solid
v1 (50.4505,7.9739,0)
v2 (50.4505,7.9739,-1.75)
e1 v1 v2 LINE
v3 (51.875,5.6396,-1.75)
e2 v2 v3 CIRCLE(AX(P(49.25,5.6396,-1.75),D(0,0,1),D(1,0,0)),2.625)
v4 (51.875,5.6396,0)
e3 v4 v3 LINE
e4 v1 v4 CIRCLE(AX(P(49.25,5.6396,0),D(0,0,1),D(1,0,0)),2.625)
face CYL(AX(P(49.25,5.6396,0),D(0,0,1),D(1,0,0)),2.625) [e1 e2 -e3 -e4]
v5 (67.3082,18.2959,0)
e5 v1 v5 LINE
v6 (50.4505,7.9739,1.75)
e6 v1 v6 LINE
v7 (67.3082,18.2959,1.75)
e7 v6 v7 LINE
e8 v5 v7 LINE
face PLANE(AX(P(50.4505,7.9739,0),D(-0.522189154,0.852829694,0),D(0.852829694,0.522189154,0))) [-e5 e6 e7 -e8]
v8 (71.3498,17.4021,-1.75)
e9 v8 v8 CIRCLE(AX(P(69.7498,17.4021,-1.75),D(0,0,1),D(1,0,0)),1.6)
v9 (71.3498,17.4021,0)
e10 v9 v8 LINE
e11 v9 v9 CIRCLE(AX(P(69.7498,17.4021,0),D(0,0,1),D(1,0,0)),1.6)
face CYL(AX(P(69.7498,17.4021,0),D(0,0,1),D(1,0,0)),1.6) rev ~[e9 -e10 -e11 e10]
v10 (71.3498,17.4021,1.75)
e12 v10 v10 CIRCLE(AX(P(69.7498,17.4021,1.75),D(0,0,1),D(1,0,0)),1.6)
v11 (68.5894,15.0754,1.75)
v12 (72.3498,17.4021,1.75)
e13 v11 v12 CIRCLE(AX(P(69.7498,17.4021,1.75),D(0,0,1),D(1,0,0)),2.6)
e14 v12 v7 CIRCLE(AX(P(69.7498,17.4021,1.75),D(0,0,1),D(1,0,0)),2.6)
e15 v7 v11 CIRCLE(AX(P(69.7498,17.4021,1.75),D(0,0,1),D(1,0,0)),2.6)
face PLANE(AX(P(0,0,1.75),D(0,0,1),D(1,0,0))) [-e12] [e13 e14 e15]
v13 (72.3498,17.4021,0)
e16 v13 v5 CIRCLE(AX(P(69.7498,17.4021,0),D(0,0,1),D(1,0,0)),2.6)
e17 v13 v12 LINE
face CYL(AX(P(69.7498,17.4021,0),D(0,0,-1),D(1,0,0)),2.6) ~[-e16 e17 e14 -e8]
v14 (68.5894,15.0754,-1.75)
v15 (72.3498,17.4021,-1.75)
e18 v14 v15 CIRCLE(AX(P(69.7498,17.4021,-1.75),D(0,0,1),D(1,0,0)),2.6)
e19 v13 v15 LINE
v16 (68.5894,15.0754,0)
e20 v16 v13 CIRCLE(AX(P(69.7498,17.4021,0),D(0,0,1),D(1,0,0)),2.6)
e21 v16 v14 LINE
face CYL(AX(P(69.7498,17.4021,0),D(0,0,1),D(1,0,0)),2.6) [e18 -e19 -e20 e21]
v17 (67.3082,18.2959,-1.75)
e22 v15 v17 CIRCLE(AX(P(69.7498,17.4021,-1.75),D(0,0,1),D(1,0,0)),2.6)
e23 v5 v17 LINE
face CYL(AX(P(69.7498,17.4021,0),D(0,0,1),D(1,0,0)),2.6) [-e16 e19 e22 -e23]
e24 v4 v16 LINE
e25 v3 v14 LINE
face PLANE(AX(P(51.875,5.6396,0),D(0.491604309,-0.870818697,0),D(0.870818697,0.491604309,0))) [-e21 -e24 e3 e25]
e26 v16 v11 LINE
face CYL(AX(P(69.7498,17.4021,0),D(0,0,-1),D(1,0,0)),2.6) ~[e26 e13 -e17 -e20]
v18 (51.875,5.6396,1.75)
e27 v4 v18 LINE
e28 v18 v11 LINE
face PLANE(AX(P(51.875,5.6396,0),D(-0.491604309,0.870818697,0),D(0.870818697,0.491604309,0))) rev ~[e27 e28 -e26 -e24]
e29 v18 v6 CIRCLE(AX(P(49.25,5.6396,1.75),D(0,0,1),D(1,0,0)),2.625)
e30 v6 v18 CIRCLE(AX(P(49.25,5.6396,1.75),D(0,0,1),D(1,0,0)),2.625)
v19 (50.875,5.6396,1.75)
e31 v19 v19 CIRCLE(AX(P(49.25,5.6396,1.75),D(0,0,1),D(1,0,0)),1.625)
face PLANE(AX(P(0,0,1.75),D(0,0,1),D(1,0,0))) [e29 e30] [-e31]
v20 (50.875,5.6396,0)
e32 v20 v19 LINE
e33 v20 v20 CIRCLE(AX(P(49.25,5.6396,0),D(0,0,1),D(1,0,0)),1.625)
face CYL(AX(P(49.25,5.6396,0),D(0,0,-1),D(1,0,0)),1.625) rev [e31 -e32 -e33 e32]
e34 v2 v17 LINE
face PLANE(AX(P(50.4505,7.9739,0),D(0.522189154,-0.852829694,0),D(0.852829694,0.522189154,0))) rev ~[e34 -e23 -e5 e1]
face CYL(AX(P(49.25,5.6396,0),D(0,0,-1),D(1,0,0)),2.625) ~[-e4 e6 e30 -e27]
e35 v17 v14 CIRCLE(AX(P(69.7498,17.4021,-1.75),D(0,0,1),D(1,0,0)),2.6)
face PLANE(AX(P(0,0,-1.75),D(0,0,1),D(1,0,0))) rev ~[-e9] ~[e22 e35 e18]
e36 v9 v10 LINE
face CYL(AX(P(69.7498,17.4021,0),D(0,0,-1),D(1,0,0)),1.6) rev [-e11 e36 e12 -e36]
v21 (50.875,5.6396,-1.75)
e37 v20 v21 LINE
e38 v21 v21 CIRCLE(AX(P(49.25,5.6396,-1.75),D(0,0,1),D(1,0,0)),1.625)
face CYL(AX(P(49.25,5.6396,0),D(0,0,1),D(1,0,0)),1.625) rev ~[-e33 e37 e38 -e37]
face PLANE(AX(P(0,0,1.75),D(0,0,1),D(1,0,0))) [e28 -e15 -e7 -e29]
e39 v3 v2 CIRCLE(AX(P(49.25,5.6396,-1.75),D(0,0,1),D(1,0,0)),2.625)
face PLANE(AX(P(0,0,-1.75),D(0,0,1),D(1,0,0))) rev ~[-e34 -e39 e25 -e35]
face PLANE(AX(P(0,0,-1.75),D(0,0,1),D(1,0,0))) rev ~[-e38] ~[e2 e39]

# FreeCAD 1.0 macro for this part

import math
import FreeCAD as App
import Part
import Sketcher
Q = App.Units.Quantity

doc = App.newDocument("Part")
params = doc.addObject("Spreadsheet::Sheet", "Params")
for row, (alias, value) in enumerate([
    ("sketch1_diameter", "3.2 mm"),
    ("sketch1_radius", "2.6 mm"),
    ("sketch1_diameter2", "3.25 mm"),
    ("pad1_length", "3.5 mm"),
], start=1):
    params.set(f"A{row}", alias)
    params.set(f"B{row}", "=" + value)
    params.setAlias(f"B{row}", alias)

body = doc.addObject("PartDesign::Body", "Body")

sketch1 = body.newObject("Sketcher::SketchObject", "Sketch")
sketch1.AttachmentSupport = (doc.getObject("XY_Plane"), [""])
sketch1.MapMode = "FlatFace"
sketch1.addGeometry(Part.ArcOfCircle(Part.Circle(App.Vector(49.2, 5.6, 0), App.Vector(0, 0, 1), 2.6), math.radians(63), math.radians(360)), False)
sketch1.addGeometry(Part.LineSegment(App.Vector(51.9, 5.6, 0), App.Vector(68.6, 15.1, 0)), False)
sketch1.addGeometry(Part.ArcOfCircle(Part.Circle(App.Vector(69.7, 17.4, 0), App.Vector(0, 0, 1), 2.6), math.radians(-117), math.radians(160)), False)
sketch1.addGeometry(Part.LineSegment(App.Vector(67.3, 18.3, 0), App.Vector(50.5, 8, 0)), False)
sketch1.addGeometry(Part.Circle(App.Vector(49.2, 5.6, 0), App.Vector(0, 0, 1), 1.6), False)
sketch1.addGeometry(Part.Circle(App.Vector(69.7, 17.4, 0), App.Vector(0, 0, 1), 1.6), False)
sketch1.addConstraint(Sketcher.Constraint("Coincident", 0, 2, 1, 1))
sketch1.addConstraint(Sketcher.Constraint("Coincident", 1, 2, 2, 1))
sketch1.addConstraint(Sketcher.Constraint("Coincident", 2, 2, 3, 1))
sketch1.addConstraint(Sketcher.Constraint("Coincident", 3, 2, 0, 1))
sketch1.addConstraint(Sketcher.Constraint("Coincident", 4, 3, 0, 3))
sketch1.addConstraint(Sketcher.Constraint("Coincident", 5, 3, 2, 3))
sketch1.addConstraint(Sketcher.Constraint("Horizontal", 4, 3, 0, 2))
sketch1.addConstraint(Sketcher.Constraint("Diameter", 5, 3.2))
sketch1.addConstraint(Sketcher.Constraint("Radius", 2, 2.6))
sketch1.addConstraint(Sketcher.Constraint("Diameter", 4, 3.25))
sketch1.addConstraint(Sketcher.Constraint("Radius", 0, 2.625))
sketch1.addConstraint(Sketcher.Constraint("Angle", 3, Q("-148.5208 deg")))
sketch1.addConstraint(Sketcher.Constraint("DistanceX", -1, 1, 0, 3, 49.25))
sketch1.addConstraint(Sketcher.Constraint("Distance", 1, 19.194))
sketch1.addConstraint(Sketcher.Constraint("DistanceY", -1, 1, 2, 3, 17.402))
sketch1.addConstraint(Sketcher.Constraint("DistanceY", -1, 1, 2, 2, 18.296))
sketch1.addConstraint(Sketcher.Constraint("DistanceY", -1, 1, 3, 2, 7.974))
sketch1.addConstraint(Sketcher.Constraint("DistanceX", 3, 2, 1, 2, 18.139))
sketch1.setExpression("Constraints[7]", "Params.sketch1_diameter")
sketch1.setExpression("Constraints[8]", "Params.sketch1_radius")
sketch1.setExpression("Constraints[9]", "Params.sketch1_diameter2")
pad1 = body.newObject("PartDesign::Pad", "Pad")
pad1.Profile = sketch1
pad1.setExpression("Length", "Params.pad1_length")
pad1.Midplane = True

doc.recompute()
